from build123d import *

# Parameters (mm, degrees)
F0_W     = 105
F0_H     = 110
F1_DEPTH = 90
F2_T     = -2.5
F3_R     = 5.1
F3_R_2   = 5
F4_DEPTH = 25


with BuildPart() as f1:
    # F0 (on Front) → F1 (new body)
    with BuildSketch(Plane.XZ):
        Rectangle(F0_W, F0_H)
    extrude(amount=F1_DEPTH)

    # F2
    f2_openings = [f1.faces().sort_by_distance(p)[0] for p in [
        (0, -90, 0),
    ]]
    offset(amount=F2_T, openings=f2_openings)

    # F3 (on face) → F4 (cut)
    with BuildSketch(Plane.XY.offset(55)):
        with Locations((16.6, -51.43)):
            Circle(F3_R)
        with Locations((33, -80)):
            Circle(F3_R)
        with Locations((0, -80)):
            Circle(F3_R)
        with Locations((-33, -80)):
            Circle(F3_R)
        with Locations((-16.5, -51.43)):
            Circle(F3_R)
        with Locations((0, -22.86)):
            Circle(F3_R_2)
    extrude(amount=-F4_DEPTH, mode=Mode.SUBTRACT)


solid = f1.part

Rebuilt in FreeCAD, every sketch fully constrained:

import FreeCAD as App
import Part
import Sketcher
from FreeCAD import Vector
Q = App.Units.Quantity


def faces_at(feature, points):
    """Names of the faces that lie closest to the given points."""
    faces = feature.Shape.Faces
    near = lambda p: min(range(len(faces)), key=lambda i: faces[i].distToShape(Part.Vertex(*p))[0])
    return sorted({f"Face{near(p) + 1}" for p in points})

doc = App.newDocument("Part")
body = doc.addObject("PartDesign::Body", "Body")

# Sketch on XZ plane
sketch1 = body.newObject("Sketcher::SketchObject", "Sketch")
sketch1.AttachmentSupport = (doc.getObject("XZ_Plane"), [""])
sketch1.MapMode = "FlatFace"
sketch1.addGeometry([
    Part.LineSegment(Vector(-52, 55, 0), Vector(-52, -55, 0)),
    Part.LineSegment(Vector(-52, -55, 0), Vector(52, -55, 0)),
    Part.LineSegment(Vector(52, -55, 0), Vector(52, 55, 0)),
    Part.LineSegment(Vector(52, 55, 0), Vector(-52, 55, 0)),
], False)
sketch1.addConstraint([
    Sketcher.Constraint("Coincident", 0, 2, 1, 1),
    Sketcher.Constraint("Coincident", 1, 2, 2, 1),
    Sketcher.Constraint("Coincident", 2, 2, 3, 1),
    Sketcher.Constraint("Coincident", 3, 2, 0, 1),
    Sketcher.Constraint("Vertical", 0),
    Sketcher.Constraint("Horizontal", 1),
    Sketcher.Constraint("Vertical", 2),
    Sketcher.Constraint("Horizontal", 3),
    Sketcher.Constraint("Symmetric", 0, 2, 2, 2, -1, 1),
    Sketcher.Constraint("DistanceX", 1, 1, 1, 2, Q("105 mm")),
    Sketcher.Constraint("DistanceY", 0, 2, 0, 1, Q("110 mm")),
])
pad1 = body.newObject("PartDesign::Pad", "Pad")
pad1.Profile = sketch1
pad1.Length = 90
doc.recompute()

thickness = body.newObject("PartDesign::Thickness", "Thickness")
thickness.Base = (pad1, faces_at(pad1, [(0, -90, 0)]))
thickness.Value = 2.5
thickness.Reversed = True
thickness.Join = "Arc"

# Sketch on XY plane
sketch2 = body.newObject("Sketcher::SketchObject", "Sketch001")
sketch2.AttachmentSupport = (doc.getObject("XY_Plane"), [""])
sketch2.MapMode = "FlatFace"
sketch2.AttachmentOffset = App.Placement(Vector(0, 0, 55), App.Rotation())
sketch2.addGeometry([
    Part.Circle(Vector(17, -51, 0), Vector(0, 0, 1), 5),  # 0
    Part.Circle(Vector(33, -80, 0), Vector(0, 0, 1), 5),  # 1
    Part.Circle(Vector(0, -80, 0), Vector(0, 0, 1), 5),  # 2
    Part.Circle(Vector(-33, -80, 0), Vector(0, 0, 1), 5),  # 3
    Part.Circle(Vector(-16, -51, 0), Vector(0, 0, 1), 5),  # 4
    Part.Circle(Vector(0, -23, 0), Vector(0, 0, 1), 5),  # 5
], False)
sketch2.addConstraint([
    Sketcher.Constraint("Equal", 0, 1),
    Sketcher.Constraint("Equal", 1, 2),
    Sketcher.Constraint("Equal", 2, 3),
    Sketcher.Constraint("Equal", 3, 4),
    Sketcher.Constraint("Symmetric", 1, 3, 3, 3, -2),
    Sketcher.Constraint("PointOnObject", 2, 3, -2),
    Sketcher.Constraint("PointOnObject", 5, 3, -2),
    Sketcher.Constraint("Horizontal", 1, 3, 2, 3),
    Sketcher.Constraint("Horizontal", 0, 3, 4, 3),
    Sketcher.Constraint("Diameter", 5, Q("10 mm")),
    Sketcher.Constraint("Diameter", 0, Q("10.2 mm")),
    Sketcher.Constraint("DistanceX", -1, 1, 1, 3, Q("33 mm")),
    Sketcher.Constraint("DistanceY", 1, 3, -1, 1, Q("80 mm")),
    Sketcher.Constraint("DistanceX", -1, 1, 0, 3, Q("16.6 mm")),
    Sketcher.Constraint("DistanceX", 4, 3, -1, 1, Q("16.5 mm")),
    Sketcher.Constraint("DistanceY", 0, 3, -1, 1, Q("51.43 mm")),
    Sketcher.Constraint("DistanceY", 5, 3, -1, 1, Q("22.86 mm")),
])
pocket1 = body.newObject("PartDesign::Pocket", "Pocket")
pocket1.Profile = sketch2
pocket1.Length = 25

doc.recompute()
